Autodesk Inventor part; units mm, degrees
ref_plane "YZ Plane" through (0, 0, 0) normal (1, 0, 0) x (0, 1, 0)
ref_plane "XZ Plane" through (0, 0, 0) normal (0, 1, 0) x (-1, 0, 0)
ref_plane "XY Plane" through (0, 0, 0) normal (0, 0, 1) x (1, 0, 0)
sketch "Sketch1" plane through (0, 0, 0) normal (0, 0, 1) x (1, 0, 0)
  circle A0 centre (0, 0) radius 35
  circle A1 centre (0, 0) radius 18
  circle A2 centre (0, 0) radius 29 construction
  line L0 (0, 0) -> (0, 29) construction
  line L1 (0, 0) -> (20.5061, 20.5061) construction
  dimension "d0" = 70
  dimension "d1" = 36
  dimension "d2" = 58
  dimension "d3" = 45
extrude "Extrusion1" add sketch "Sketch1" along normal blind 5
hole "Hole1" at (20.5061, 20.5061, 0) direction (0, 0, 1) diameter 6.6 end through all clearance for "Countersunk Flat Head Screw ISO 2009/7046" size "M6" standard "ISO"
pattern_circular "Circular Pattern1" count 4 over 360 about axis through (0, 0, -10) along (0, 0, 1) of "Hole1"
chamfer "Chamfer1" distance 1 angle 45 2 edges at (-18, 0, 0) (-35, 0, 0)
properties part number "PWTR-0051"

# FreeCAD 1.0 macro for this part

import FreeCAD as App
import Part
import Sketcher

V = App.Vector


def edges_at(feature, points):
    """Names of the edges that pass closest to the given points."""
    edges = feature.Shape.Edges
    near = lambda p: min(range(len(edges)), key=lambda i: edges[i].distToShape(Part.Vertex(*p))[0])
    return sorted({f"Edge{near(p) + 1}" for p in points})

doc = App.newDocument("Part")
body = doc.addObject("PartDesign::Body", "Body")

# Sketch on XY plane
sketch1 = body.newObject("Sketcher::SketchObject", "Sketch")
sketch1.AttachmentSupport = (doc.getObject("XY_Plane"), [""])
sketch1.MapMode = "FlatFace"
sketch1.addGeometry([
    Part.Circle(V(0, 0, 0), V(0, 0, 1), 35),
    Part.Circle(V(0, 0, 0), V(0, 0, 1), 18),
], False)
sketch1.addConstraint([
    Sketcher.Constraint("Coincident", 0, 3, -1, 1),
    Sketcher.Constraint("Coincident", 1, 3, -1, 1),
    Sketcher.Constraint("Diameter", 0, 70.0),
    Sketcher.Constraint("Diameter", 1, 36.0),
])
pad1 = body.newObject("PartDesign::Pad", "Pad")
pad1.Profile = sketch1
pad1.Length = 5

# Sketch on XY plane
sketch2 = body.newObject("Sketcher::SketchObject", "Sketch001")
sketch2.AttachmentSupport = (doc.getObject("XY_Plane"), [""])
sketch2.MapMode = "FlatFace"
sketch2.addGeometry(Part.Circle(V(20.5, 20.5, 0), V(0, 0, 1), 3.3), False)
sketch2.addConstraint([
    Sketcher.Constraint("Diameter", 0, 6.6),
    Sketcher.Constraint("DistanceX", -1, 1, 0, 3, 20.506),
    Sketcher.Constraint("DistanceY", -1, 1, 0, 3, 20.506),
])
doc.recompute()
hole = body.newObject("PartDesign::Hole", "Hole")
hole.Profile = sketch2
hole.ThreadType = "None"
hole.Diameter = 6.6
hole.DepthType = "ThroughAll"
hole.Reversed = True
doc.recompute()

polarpattern = body.newObject("PartDesign::PolarPattern", "PolarPattern")
polarpattern.Originals = [hole]
polarpattern.Axis = (doc.getObject("Z_Axis"), [""])
polarpattern.Angle = 360
polarpattern.Occurrences = 4
body.Tip = polarpattern
doc.recompute()

chamfer = body.newObject("PartDesign::Chamfer", "Chamfer")
chamfer.Base = (polarpattern, edges_at(polarpattern, [(-18, 0, 0), (-35, 0, 0)]))
chamfer.Size = 1

doc.recompute()
